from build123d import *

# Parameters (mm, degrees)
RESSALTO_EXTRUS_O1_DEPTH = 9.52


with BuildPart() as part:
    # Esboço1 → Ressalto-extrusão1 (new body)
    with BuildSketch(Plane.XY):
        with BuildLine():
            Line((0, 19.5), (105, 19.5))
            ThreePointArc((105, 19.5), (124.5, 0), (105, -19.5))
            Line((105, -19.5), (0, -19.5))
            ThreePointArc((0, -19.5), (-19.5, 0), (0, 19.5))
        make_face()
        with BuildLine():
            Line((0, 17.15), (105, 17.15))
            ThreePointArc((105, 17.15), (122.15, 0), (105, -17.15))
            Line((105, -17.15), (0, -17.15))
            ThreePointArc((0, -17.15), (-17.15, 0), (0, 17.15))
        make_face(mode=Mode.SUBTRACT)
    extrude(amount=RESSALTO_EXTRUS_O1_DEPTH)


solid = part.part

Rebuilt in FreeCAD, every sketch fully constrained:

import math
import FreeCAD as App
import Part
import Sketcher
from FreeCAD import Vector

doc = App.newDocument("Part")
body = doc.addObject("PartDesign::Body", "Body")

sketch1 = body.newObject("Sketcher::SketchObject", "Sketch")
sketch1.AttachmentSupport = (doc.getObject("XY_Plane"), [""])
sketch1.MapMode = "FlatFace"
sketch1.addGeometry(Part.LineSegment(Vector(105, 19.5, 0), Vector(0, 19.5, 0)), False)
sketch1.addGeometry(Part.ArcOfCircle(Part.Circle(Vector(0, 0, 0), Vector(0, 0, 1), 19.5), math.radians(90), math.radians(270)), False)
sketch1.addGeometry(Part.LineSegment(Vector(0, -19.5, 0), Vector(105, -19.5, 0)), False)
sketch1.addGeometry(Part.ArcOfCircle(Part.Circle(Vector(105, 0, 0), Vector(0, 0, 1), 19.5), math.radians(-90), math.radians(90)), False)
sketch1.addGeometry(Part.LineSegment(Vector(0, 17.15, 0), Vector(105, 17.15, 0)), False)
sketch1.addGeometry(Part.ArcOfCircle(Part.Circle(Vector(105, 0, 0), Vector(0, 0, 1), 17.15), math.radians(-90), math.radians(90)), False)
sketch1.addGeometry(Part.LineSegment(Vector(105, -17.15, 0), Vector(0, -17.15, 0)), False)
sketch1.addGeometry(Part.ArcOfCircle(Part.Circle(Vector(0, 0, 0), Vector(0, 0, 1), 17.15), math.radians(90), math.radians(270)), False)
sketch1.addConstraint(Sketcher.Constraint("Tangent", 0, 2, 1, 1))
sketch1.addConstraint(Sketcher.Constraint("Tangent", 1, 2, 2, 1))
sketch1.addConstraint(Sketcher.Constraint("Tangent", 2, 2, 3, 1))
sketch1.addConstraint(Sketcher.Constraint("Tangent", 3, 2, 0, 1))
sketch1.addConstraint(Sketcher.Constraint("Tangent", 4, 2, 5, 2))
sketch1.addConstraint(Sketcher.Constraint("Tangent", 5, 1, 6, 1))
sketch1.addConstraint(Sketcher.Constraint("Tangent", 6, 2, 7, 2))
sketch1.addConstraint(Sketcher.Constraint("Tangent", 7, 1, 4, 1))
sketch1.addConstraint(Sketcher.Constraint("Horizontal", 0))
sketch1.addConstraint(Sketcher.Constraint("Horizontal", 2))
sketch1.addConstraint(Sketcher.Constraint("Horizontal", 4))
sketch1.addConstraint(Sketcher.Constraint("Horizontal", 6))
sketch1.addConstraint(Sketcher.Constraint("Coincident", 1, 3, -1, 1))
sketch1.addConstraint(Sketcher.Constraint("Coincident", 7, 3, -1, 1))
sketch1.addConstraint(Sketcher.Constraint("Vertical", 5, 3, 2, 2))
sketch1.addConstraint(Sketcher.Constraint("Radius", 1, 19.5))
sketch1.addConstraint(Sketcher.Constraint("DistanceX", 0, 2, 0, 1, 105.0))
sketch1.addConstraint(Sketcher.Constraint("Radius", 5, 17.15))
pad1 = body.newObject("PartDesign::Pad", "Pad")
pad1.Profile = sketch1
pad1.Length = 9.52

doc.recompute()
